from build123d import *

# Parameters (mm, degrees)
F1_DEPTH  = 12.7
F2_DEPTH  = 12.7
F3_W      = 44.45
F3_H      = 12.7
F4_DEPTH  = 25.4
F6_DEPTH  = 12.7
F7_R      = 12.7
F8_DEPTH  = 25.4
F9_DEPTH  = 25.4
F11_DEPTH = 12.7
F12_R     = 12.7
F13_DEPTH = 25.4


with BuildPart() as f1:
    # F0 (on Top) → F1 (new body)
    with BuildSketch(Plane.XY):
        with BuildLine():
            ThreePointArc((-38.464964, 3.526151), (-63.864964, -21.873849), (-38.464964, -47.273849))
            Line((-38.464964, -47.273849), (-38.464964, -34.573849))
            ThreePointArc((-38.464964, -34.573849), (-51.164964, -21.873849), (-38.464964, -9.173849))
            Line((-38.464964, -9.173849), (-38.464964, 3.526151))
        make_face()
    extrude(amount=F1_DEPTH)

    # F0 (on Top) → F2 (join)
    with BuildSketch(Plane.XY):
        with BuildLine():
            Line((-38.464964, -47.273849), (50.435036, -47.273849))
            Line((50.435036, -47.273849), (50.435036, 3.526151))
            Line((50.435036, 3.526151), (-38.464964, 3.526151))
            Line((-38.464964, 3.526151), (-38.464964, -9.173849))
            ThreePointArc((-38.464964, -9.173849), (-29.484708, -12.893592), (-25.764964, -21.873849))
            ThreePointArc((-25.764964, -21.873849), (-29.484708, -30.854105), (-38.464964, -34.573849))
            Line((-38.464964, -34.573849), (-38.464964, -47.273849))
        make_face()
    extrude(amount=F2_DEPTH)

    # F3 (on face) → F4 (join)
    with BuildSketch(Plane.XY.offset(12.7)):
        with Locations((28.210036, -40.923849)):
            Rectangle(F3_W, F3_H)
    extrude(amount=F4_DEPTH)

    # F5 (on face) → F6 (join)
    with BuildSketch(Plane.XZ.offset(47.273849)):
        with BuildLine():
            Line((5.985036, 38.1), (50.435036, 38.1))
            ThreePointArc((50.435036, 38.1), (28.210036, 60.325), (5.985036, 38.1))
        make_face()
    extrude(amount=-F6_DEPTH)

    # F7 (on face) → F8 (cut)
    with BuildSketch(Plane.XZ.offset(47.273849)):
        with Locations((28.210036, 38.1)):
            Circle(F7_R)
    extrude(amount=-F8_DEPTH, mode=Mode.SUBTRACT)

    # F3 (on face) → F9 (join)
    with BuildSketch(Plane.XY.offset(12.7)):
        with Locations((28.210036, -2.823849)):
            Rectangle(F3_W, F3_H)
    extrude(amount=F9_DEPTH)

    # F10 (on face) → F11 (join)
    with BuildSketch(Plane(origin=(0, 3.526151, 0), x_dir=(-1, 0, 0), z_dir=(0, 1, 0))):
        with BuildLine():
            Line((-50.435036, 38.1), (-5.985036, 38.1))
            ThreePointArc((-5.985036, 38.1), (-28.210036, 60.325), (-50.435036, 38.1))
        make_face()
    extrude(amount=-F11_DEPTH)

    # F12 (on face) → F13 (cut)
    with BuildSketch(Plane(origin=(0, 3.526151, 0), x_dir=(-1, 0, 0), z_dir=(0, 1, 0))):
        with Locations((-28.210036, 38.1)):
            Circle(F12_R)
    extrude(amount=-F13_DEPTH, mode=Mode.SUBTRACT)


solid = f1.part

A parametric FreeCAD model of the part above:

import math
import FreeCAD as App
import Part
import Sketcher
Q = App.Units.Quantity


def add_polygon(sketch, points):
    """Adds a closed chain of lines whose ends are joined by coincident constraints."""
    first, n = sketch.GeometryCount, len(points)
    for a, b in zip(points, points[1:] + points[:1]):
        sketch.addGeometry(Part.LineSegment(App.Vector(*a, 0), App.Vector(*b, 0)), False)
    for i in range(n):
        sketch.addConstraint(Sketcher.Constraint("Coincident", first + i, 2, first + (i + 1) % n, 1))

doc = App.newDocument("Part")
params = doc.addObject("Spreadsheet::Sheet", "Params")
for row, (alias, value) in enumerate([
    ("sketch1_radius", "1 in"),
    ("sketch1_radius2", "0.5 in"),
    ("pad1_length", "0.5 in"),
    ("sketch2_radius", "0.4999999 in"),
    ("sketch2_height", "2 in"),
    ("sketch2_width", "3.5 in"),
    ("pad2_length", "0.5 in"),
    ("sketch3_height", "0.5 in"),
    ("sketch3_width", "1.75 in"),
    ("pad3_length", "1 in"),
    ("sketch4_radius", "0.875 in"),
    ("pad4_length", "0.5 in"),
    ("sketch5_diameter", "1 in"),
    ("pocket1_length", "1 in"),
    ("sketch6_height", "0.5 in"),
    ("sketch6_width", "1.75 in"),
    ("pad5_length", "1 in"),
    ("sketch7_radius", "0.875 in"),
    ("pad6_length", "0.5 in"),
    ("sketch8_diameter", "1 in"),
    ("pocket2_length", "1 in"),
], start=1):
    params.set(f"A{row}", alias)
    params.set(f"B{row}", "=" + value)
    params.setAlias(f"B{row}", alias)

body = doc.addObject("PartDesign::Body", "Body")

sketch1 = doc.addObject("Sketcher::SketchObject", "Sketch")
body.addObject(sketch1)
sketch1.AttachmentSupport = (doc.XY_Plane, [""])
sketch1.MapMode = "FlatFace"
sketch1.addGeometry([
    Part.ArcOfCircle(Part.Circle(App.Vector(-38, -22, 0), App.Vector(0, 0, 1), 25), math.radians(90), math.radians(270)),
    Part.LineSegment(App.Vector(-38, -47, 0), App.Vector(-38, -35, 0)),
    Part.ArcOfCircle(Part.Circle(App.Vector(-38, -22, 0), App.Vector(0, 0, 1), 13), math.radians(90), math.radians(270)),
    Part.LineSegment(App.Vector(-38, -9, 0), App.Vector(-38, 4, 0)),
], False)
sketch1.addConstraint([
    Sketcher.Constraint("Coincident", 0, 2, 1, 1),
    Sketcher.Constraint("Coincident", 1, 2, 2, 2),
    Sketcher.Constraint("Coincident", 2, 1, 3, 1),
    Sketcher.Constraint("Coincident", 3, 2, 0, 1),
    Sketcher.Constraint("Vertical", 1),
    Sketcher.Constraint("Vertical", 3),
    Sketcher.Constraint("Coincident", 2, 3, 0, 3),
    Sketcher.Constraint("Vertical", 2, 3, 0, 2),
    Sketcher.Constraint("Vertical", 1, 2, 2, 1),
    Sketcher.Constraint("Radius", 0, Q("1 in")),
    Sketcher.Constraint("Radius", 2, Q("0.5 in")),
    Sketcher.Constraint("DistanceY", 0, 3, -1, 1, Q("21.873849 mm")),
    Sketcher.Constraint("DistanceX", 0, 3, -1, 1, Q("38.464964 mm")),
])
sketch1.setExpression("Constraints[9]", "Params.sketch1_radius")
sketch1.setExpression("Constraints[10]", "Params.sketch1_radius2")
pad1 = doc.addObject("PartDesign::Pad", "Pad")
body.addObject(pad1)
pad1.Profile = sketch1
pad1.setExpression("Length", "Params.pad1_length")

sketch2 = doc.addObject("Sketcher::SketchObject", "Sketch001")
body.addObject(sketch2)
sketch2.AttachmentSupport = (doc.XY_Plane, [""])
sketch2.MapMode = "FlatFace"
sketch2.addGeometry([
    Part.LineSegment(App.Vector(-38, -47, 0), App.Vector(50, -47, 0)),
    Part.LineSegment(App.Vector(50, -47, 0), App.Vector(50, 4, 0)),
    Part.LineSegment(App.Vector(50, 4, 0), App.Vector(-38, 4, 0)),
    Part.LineSegment(App.Vector(-38, 4, 0), App.Vector(-38, -9, 0)),
    Part.ArcOfCircle(Part.Circle(App.Vector(-38, -22, 0), App.Vector(0, 0, 1), 13), math.radians(0), math.radians(90)),
    Part.ArcOfCircle(Part.Circle(App.Vector(-38, -22, 0), App.Vector(0, 0, 1), 13), math.radians(-90), math.radians(0)),
    Part.LineSegment(App.Vector(-38, -35, 0), App.Vector(-38, -47, 0)),
], False)
sketch2.addConstraint([
    Sketcher.Constraint("Coincident", 0, 2, 1, 1),
    Sketcher.Constraint("Coincident", 1, 2, 2, 1),
    Sketcher.Constraint("Coincident", 2, 2, 3, 1),
    Sketcher.Constraint("Coincident", 3, 2, 4, 2),
    Sketcher.Constraint("Tangent", 4, 1, 5, 2),
    Sketcher.Constraint("Coincident", 5, 1, 6, 1),
    Sketcher.Constraint("Coincident", 6, 2, 0, 1),
    Sketcher.Constraint("Horizontal", 0),
    Sketcher.Constraint("Vertical", 1),
    Sketcher.Constraint("Horizontal", 2),
    Sketcher.Constraint("Vertical", 3),
    Sketcher.Constraint("Vertical", 6),
    Sketcher.Constraint("Equal", 4, 5),
    Sketcher.Constraint("Horizontal", 5, 3, 4, 1),
    Sketcher.Constraint("Vertical", 5, 3, 2, 2),
    Sketcher.Constraint("Vertical", 3, 2, 5, 1),
    Sketcher.Constraint("Equal", 3, 6),
    Sketcher.Constraint("Radius", 4, Q("0.4999999 in")),
    Sketcher.Constraint("DistanceY", 1, 1, 1, 2, Q("2 in")),
    Sketcher.Constraint("DistanceX", 0, 1, 0, 2, Q("3.5 in")),
    Sketcher.Constraint("DistanceY", 5, 3, -1, 1, Q("21.873849 mm")),
    Sketcher.Constraint("DistanceX", 4, 3, -1, 1, Q("38.464963 mm")),
])
sketch2.setExpression("Constraints[17]", "Params.sketch2_radius")
sketch2.setExpression("Constraints[18]", "Params.sketch2_height")
sketch2.setExpression("Constraints[19]", "Params.sketch2_width")
pad2 = doc.addObject("PartDesign::Pad", "Pad001")
body.addObject(pad2)
pad2.Profile = sketch2
pad2.setExpression("Length", "Params.pad2_length")

sketch3 = doc.addObject("Sketcher::SketchObject", "Sketch002")
body.addObject(sketch3)
sketch3.AttachmentSupport = (doc.XY_Plane, [""])
sketch3.MapMode = "FlatFace"
sketch3.AttachmentOffset = App.Placement(App.Vector(0, 0, 0.5 * 25.4), App.Rotation())
add_polygon(sketch3, [(6, -35), (6, -47), (50, -47), (50, -35)])
sketch3.addConstraint([
    Sketcher.Constraint("Vertical", 0),
    Sketcher.Constraint("Horizontal", 1),
    Sketcher.Constraint("Vertical", 2),
    Sketcher.Constraint("Horizontal", 3),
    Sketcher.Constraint("DistanceY", 0, 2, 0, 1, Q("0.5 in")),
    Sketcher.Constraint("DistanceX", 1, 1, 1, 2, Q("1.75 in")),
    Sketcher.Constraint("DistanceY", 0, 2, -1, 1, Q("47.273849 mm")),
    Sketcher.Constraint("DistanceX", -1, 1, 0, 2, Q("5.985036 mm")),
])
sketch3.setExpression("Constraints[8]", "Params.sketch3_height")
sketch3.setExpression("Constraints[9]", "Params.sketch3_width")
pad3 = doc.addObject("PartDesign::Pad", "Pad002")
body.addObject(pad3)
pad3.Profile = sketch3
pad3.setExpression("Length", "Params.pad3_length")

sketch4 = doc.addObject("Sketcher::SketchObject", "Sketch003")
body.addObject(sketch4)
sketch4.AttachmentSupport = (doc.XZ_Plane, [""])
sketch4.MapMode = "FlatFace"
sketch4.AttachmentOffset = App.Placement(App.Vector(0, 0, 47.273849), App.Rotation())
sketch4.addGeometry([
    Part.LineSegment(App.Vector(6, 38, 0), App.Vector(50, 38, 0)),
    Part.ArcOfCircle(Part.Circle(App.Vector(28, 38, 0), App.Vector(0, 0, 1), 22), math.radians(0), math.radians(180)),
], False)
sketch4.addConstraint([
    Sketcher.Constraint("Coincident", 0, 1, 1, 2),
    Sketcher.Constraint("Coincident", 1, 1, 0, 2),
    Sketcher.Constraint("Horizontal", 0),
    Sketcher.Constraint("Horizontal", 1, 3, 0, 1),
    Sketcher.Constraint("Radius", 1, Q("0.875 in")),
    Sketcher.Constraint("DistanceY", -1, 1, 1, 3, Q("1.5 in")),
    Sketcher.Constraint("DistanceX", -1, 1, 1, 3, Q("28.210036 mm")),
])
sketch4.setExpression("Constraints[4]", "Params.sketch4_radius")
pad4 = doc.addObject("PartDesign::Pad", "Pad003")
body.addObject(pad4)
pad4.Profile = sketch4
pad4.setExpression("Length", "Params.pad4_length")
pad4.Reversed = True

sketch5 = doc.addObject("Sketcher::SketchObject", "Sketch004")
body.addObject(sketch5)
sketch5.AttachmentSupport = (doc.XZ_Plane, [""])
sketch5.MapMode = "FlatFace"
sketch5.AttachmentOffset = App.Placement(App.Vector(0, 0, 47.273849), App.Rotation())
sketch5.addGeometry(Part.Circle(App.Vector(28, 38, 0), App.Vector(0, 0, 1), 13), False)
sketch5.addConstraint([
    Sketcher.Constraint("Diameter", 0, Q("1 in")),
    Sketcher.Constraint("DistanceY", -1, 1, 0, 3, Q("1.5 in")),
    Sketcher.Constraint("DistanceX", -1, 1, 0, 3, Q("28.210036 mm")),
])
sketch5.setExpression("Constraints[0]", "Params.sketch5_diameter")
pocket1 = doc.addObject("PartDesign::Pocket", "Pocket")
body.addObject(pocket1)
pocket1.Profile = sketch5
pocket1.setExpression("Length", "Params.pocket1_length")

sketch6 = doc.addObject("Sketcher::SketchObject", "Sketch005")
body.addObject(sketch6)
sketch6.AttachmentSupport = (doc.XY_Plane, [""])
sketch6.MapMode = "FlatFace"
sketch6.AttachmentOffset = App.Placement(App.Vector(0, 0, 0.5 * 25.4), App.Rotation())
add_polygon(sketch6, [(6, 4), (6, -9), (50, -9), (50, 4)])
sketch6.addConstraint([
    Sketcher.Constraint("Vertical", 0),
    Sketcher.Constraint("Horizontal", 1),
    Sketcher.Constraint("Vertical", 2),
    Sketcher.Constraint("Horizontal", 3),
    Sketcher.Constraint("DistanceY", 0, 2, 0, 1, Q("0.5 in")),
    Sketcher.Constraint("DistanceX", 1, 1, 1, 2, Q("1.75 in")),
    Sketcher.Constraint("DistanceY", 0, 2, -1, 1, Q("9.173849 mm")),
    Sketcher.Constraint("DistanceX", -1, 1, 0, 2, Q("5.985036 mm")),
])
sketch6.setExpression("Constraints[8]", "Params.sketch6_height")
sketch6.setExpression("Constraints[9]", "Params.sketch6_width")
pad5 = doc.addObject("PartDesign::Pad", "Pad004")
body.addObject(pad5)
pad5.Profile = sketch6
pad5.setExpression("Length", "Params.pad5_length")

sketch7 = doc.addObject("Sketcher::SketchObject", "Sketch006")
body.addObject(sketch7)
sketch7.AttachmentSupport = (doc.XZ_Plane, [""])
sketch7.MapMode = "FlatFace"
sketch7.AttachmentOffset = App.Placement(App.Vector(0, 0, -3.526151), App.Rotation())
sketch7.addGeometry([
    Part.LineSegment(App.Vector(50, 38, 0), App.Vector(6, 38, 0)),
    Part.ArcOfCircle(Part.Circle(App.Vector(28, 38, 0), App.Vector(0, 0, 1), 22), math.radians(0), math.radians(180)),
], False)
sketch7.addConstraint([
    Sketcher.Constraint("Coincident", 0, 1, 1, 1),
    Sketcher.Constraint("Coincident", 1, 2, 0, 2),
    Sketcher.Constraint("Horizontal", 0),
    Sketcher.Constraint("Horizontal", 1, 3, 0, 1),
    Sketcher.Constraint("Radius", 1, Q("0.875 in")),
    Sketcher.Constraint("DistanceY", -1, 1, 1, 3, Q("1.5 in")),
    Sketcher.Constraint("DistanceX", -1, 1, 1, 3, Q("28.210036 mm")),
])
sketch7.setExpression("Constraints[4]", "Params.sketch7_radius")
pad6 = doc.addObject("PartDesign::Pad", "Pad005")
body.addObject(pad6)
pad6.Profile = sketch7
pad6.setExpression("Length", "Params.pad6_length")

sketch8 = doc.addObject("Sketcher::SketchObject", "Sketch007")
body.addObject(sketch8)
sketch8.AttachmentSupport = (doc.XZ_Plane, [""])
sketch8.MapMode = "FlatFace"
sketch8.AttachmentOffset = App.Placement(App.Vector(0, 0, -3.526151), App.Rotation())
sketch8.addGeometry(Part.Circle(App.Vector(28, 38, 0), App.Vector(0, 0, 1), 13), False)
sketch8.addConstraint([
    Sketcher.Constraint("Diameter", 0, Q("1 in")),
    Sketcher.Constraint("DistanceY", -1, 1, 0, 3, Q("1.5 in")),
    Sketcher.Constraint("DistanceX", -1, 1, 0, 3, Q("28.210036 mm")),
])
sketch8.setExpression("Constraints[0]", "Params.sketch8_diameter")
pocket2 = doc.addObject("PartDesign::Pocket", "Pocket001")
body.addObject(pocket2)
pocket2.Profile = sketch8
pocket2.setExpression("Length", "Params.pocket2_length")
pocket2.Reversed = True

doc.recompute()
